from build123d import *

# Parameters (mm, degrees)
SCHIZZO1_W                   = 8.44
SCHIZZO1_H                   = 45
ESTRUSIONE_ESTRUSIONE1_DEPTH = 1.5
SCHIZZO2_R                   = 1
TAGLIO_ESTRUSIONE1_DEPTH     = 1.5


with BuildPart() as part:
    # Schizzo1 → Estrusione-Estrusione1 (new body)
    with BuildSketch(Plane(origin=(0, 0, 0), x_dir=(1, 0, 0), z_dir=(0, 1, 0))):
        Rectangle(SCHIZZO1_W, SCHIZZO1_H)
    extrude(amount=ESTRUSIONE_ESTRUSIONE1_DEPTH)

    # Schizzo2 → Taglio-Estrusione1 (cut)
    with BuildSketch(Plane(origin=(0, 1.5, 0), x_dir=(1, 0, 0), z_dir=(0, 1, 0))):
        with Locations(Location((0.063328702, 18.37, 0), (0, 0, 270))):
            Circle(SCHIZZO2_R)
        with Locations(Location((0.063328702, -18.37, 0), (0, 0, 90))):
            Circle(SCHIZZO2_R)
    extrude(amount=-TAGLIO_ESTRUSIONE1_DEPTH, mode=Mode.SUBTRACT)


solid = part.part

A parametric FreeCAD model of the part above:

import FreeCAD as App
import Part
import Sketcher


def add_polygon(sketch, points):
    """Adds a closed chain of lines whose ends are joined by coincident constraints."""
    first, n = sketch.GeometryCount, len(points)
    for a, b in zip(points, points[1:] + points[:1]):
        sketch.addGeometry(Part.LineSegment(App.Vector(*a, 0), App.Vector(*b, 0)), False)
    for i in range(n):
        sketch.addConstraint(Sketcher.Constraint("Coincident", first + i, 2, first + (i + 1) % n, 1))

doc = App.newDocument("Part")
body = doc.addObject("PartDesign::Body", "Body")

sketch1 = body.newObject("Sketcher::SketchObject", "Sketch")
sketch1.AttachmentSupport = (doc.getObject("XZ_Plane"), [""])
sketch1.MapMode = "FlatFace"
add_polygon(sketch1, [(-4, -22), (-4, 22), (4, 22), (4, -22)])
sketch1.addConstraint(Sketcher.Constraint("Vertical", 0))
sketch1.addConstraint(Sketcher.Constraint("Horizontal", 1))
sketch1.addConstraint(Sketcher.Constraint("Vertical", 2))
sketch1.addConstraint(Sketcher.Constraint("Horizontal", 3))
sketch1.addConstraint(Sketcher.Constraint("Symmetric", 0, 2, 2, 2, -1, 1))
sketch1.addConstraint(Sketcher.Constraint("DistanceY", 0, 1, 0, 2, 45.0))
sketch1.addConstraint(Sketcher.Constraint("DistanceX", 1, 1, 1, 2, 8.44))
pad1 = body.newObject("PartDesign::Pad", "Pad")
pad1.Profile = sketch1
pad1.Length = 1.5
pad1.Reversed = True

sketch2 = body.newObject("Sketcher::SketchObject", "Sketch001")
sketch2.AttachmentSupport = (doc.getObject("XZ_Plane"), [""])
sketch2.MapMode = "FlatFace"
sketch2.AttachmentOffset = App.Placement(App.Vector(0, 0, -1.5), App.Rotation())
sketch2.addGeometry(Part.Circle(App.Vector(0.1, -18.4, 0), App.Vector(0, 0, 1), 1), False)
sketch2.addGeometry(Part.Circle(App.Vector(0.1, 18.4, 0), App.Vector(0, 0, 1), 1), False)
sketch2.addConstraint(Sketcher.Constraint("Equal", 0, 1))
sketch2.addConstraint(Sketcher.Constraint("Symmetric", 0, 3, 1, 3, -1))
sketch2.addConstraint(Sketcher.Constraint("Diameter", 0, 2.0))
sketch2.addConstraint(Sketcher.Constraint("DistanceY", 0, 3, -1, 1, 18.37))
sketch2.addConstraint(Sketcher.Constraint("DistanceX", -1, 1, 0, 3, 0.063329))
pocket1 = body.newObject("PartDesign::Pocket", "Pocket")
pocket1.Profile = sketch2
pocket1.Length = 1.5
pocket1.Reversed = True

doc.recompute()
